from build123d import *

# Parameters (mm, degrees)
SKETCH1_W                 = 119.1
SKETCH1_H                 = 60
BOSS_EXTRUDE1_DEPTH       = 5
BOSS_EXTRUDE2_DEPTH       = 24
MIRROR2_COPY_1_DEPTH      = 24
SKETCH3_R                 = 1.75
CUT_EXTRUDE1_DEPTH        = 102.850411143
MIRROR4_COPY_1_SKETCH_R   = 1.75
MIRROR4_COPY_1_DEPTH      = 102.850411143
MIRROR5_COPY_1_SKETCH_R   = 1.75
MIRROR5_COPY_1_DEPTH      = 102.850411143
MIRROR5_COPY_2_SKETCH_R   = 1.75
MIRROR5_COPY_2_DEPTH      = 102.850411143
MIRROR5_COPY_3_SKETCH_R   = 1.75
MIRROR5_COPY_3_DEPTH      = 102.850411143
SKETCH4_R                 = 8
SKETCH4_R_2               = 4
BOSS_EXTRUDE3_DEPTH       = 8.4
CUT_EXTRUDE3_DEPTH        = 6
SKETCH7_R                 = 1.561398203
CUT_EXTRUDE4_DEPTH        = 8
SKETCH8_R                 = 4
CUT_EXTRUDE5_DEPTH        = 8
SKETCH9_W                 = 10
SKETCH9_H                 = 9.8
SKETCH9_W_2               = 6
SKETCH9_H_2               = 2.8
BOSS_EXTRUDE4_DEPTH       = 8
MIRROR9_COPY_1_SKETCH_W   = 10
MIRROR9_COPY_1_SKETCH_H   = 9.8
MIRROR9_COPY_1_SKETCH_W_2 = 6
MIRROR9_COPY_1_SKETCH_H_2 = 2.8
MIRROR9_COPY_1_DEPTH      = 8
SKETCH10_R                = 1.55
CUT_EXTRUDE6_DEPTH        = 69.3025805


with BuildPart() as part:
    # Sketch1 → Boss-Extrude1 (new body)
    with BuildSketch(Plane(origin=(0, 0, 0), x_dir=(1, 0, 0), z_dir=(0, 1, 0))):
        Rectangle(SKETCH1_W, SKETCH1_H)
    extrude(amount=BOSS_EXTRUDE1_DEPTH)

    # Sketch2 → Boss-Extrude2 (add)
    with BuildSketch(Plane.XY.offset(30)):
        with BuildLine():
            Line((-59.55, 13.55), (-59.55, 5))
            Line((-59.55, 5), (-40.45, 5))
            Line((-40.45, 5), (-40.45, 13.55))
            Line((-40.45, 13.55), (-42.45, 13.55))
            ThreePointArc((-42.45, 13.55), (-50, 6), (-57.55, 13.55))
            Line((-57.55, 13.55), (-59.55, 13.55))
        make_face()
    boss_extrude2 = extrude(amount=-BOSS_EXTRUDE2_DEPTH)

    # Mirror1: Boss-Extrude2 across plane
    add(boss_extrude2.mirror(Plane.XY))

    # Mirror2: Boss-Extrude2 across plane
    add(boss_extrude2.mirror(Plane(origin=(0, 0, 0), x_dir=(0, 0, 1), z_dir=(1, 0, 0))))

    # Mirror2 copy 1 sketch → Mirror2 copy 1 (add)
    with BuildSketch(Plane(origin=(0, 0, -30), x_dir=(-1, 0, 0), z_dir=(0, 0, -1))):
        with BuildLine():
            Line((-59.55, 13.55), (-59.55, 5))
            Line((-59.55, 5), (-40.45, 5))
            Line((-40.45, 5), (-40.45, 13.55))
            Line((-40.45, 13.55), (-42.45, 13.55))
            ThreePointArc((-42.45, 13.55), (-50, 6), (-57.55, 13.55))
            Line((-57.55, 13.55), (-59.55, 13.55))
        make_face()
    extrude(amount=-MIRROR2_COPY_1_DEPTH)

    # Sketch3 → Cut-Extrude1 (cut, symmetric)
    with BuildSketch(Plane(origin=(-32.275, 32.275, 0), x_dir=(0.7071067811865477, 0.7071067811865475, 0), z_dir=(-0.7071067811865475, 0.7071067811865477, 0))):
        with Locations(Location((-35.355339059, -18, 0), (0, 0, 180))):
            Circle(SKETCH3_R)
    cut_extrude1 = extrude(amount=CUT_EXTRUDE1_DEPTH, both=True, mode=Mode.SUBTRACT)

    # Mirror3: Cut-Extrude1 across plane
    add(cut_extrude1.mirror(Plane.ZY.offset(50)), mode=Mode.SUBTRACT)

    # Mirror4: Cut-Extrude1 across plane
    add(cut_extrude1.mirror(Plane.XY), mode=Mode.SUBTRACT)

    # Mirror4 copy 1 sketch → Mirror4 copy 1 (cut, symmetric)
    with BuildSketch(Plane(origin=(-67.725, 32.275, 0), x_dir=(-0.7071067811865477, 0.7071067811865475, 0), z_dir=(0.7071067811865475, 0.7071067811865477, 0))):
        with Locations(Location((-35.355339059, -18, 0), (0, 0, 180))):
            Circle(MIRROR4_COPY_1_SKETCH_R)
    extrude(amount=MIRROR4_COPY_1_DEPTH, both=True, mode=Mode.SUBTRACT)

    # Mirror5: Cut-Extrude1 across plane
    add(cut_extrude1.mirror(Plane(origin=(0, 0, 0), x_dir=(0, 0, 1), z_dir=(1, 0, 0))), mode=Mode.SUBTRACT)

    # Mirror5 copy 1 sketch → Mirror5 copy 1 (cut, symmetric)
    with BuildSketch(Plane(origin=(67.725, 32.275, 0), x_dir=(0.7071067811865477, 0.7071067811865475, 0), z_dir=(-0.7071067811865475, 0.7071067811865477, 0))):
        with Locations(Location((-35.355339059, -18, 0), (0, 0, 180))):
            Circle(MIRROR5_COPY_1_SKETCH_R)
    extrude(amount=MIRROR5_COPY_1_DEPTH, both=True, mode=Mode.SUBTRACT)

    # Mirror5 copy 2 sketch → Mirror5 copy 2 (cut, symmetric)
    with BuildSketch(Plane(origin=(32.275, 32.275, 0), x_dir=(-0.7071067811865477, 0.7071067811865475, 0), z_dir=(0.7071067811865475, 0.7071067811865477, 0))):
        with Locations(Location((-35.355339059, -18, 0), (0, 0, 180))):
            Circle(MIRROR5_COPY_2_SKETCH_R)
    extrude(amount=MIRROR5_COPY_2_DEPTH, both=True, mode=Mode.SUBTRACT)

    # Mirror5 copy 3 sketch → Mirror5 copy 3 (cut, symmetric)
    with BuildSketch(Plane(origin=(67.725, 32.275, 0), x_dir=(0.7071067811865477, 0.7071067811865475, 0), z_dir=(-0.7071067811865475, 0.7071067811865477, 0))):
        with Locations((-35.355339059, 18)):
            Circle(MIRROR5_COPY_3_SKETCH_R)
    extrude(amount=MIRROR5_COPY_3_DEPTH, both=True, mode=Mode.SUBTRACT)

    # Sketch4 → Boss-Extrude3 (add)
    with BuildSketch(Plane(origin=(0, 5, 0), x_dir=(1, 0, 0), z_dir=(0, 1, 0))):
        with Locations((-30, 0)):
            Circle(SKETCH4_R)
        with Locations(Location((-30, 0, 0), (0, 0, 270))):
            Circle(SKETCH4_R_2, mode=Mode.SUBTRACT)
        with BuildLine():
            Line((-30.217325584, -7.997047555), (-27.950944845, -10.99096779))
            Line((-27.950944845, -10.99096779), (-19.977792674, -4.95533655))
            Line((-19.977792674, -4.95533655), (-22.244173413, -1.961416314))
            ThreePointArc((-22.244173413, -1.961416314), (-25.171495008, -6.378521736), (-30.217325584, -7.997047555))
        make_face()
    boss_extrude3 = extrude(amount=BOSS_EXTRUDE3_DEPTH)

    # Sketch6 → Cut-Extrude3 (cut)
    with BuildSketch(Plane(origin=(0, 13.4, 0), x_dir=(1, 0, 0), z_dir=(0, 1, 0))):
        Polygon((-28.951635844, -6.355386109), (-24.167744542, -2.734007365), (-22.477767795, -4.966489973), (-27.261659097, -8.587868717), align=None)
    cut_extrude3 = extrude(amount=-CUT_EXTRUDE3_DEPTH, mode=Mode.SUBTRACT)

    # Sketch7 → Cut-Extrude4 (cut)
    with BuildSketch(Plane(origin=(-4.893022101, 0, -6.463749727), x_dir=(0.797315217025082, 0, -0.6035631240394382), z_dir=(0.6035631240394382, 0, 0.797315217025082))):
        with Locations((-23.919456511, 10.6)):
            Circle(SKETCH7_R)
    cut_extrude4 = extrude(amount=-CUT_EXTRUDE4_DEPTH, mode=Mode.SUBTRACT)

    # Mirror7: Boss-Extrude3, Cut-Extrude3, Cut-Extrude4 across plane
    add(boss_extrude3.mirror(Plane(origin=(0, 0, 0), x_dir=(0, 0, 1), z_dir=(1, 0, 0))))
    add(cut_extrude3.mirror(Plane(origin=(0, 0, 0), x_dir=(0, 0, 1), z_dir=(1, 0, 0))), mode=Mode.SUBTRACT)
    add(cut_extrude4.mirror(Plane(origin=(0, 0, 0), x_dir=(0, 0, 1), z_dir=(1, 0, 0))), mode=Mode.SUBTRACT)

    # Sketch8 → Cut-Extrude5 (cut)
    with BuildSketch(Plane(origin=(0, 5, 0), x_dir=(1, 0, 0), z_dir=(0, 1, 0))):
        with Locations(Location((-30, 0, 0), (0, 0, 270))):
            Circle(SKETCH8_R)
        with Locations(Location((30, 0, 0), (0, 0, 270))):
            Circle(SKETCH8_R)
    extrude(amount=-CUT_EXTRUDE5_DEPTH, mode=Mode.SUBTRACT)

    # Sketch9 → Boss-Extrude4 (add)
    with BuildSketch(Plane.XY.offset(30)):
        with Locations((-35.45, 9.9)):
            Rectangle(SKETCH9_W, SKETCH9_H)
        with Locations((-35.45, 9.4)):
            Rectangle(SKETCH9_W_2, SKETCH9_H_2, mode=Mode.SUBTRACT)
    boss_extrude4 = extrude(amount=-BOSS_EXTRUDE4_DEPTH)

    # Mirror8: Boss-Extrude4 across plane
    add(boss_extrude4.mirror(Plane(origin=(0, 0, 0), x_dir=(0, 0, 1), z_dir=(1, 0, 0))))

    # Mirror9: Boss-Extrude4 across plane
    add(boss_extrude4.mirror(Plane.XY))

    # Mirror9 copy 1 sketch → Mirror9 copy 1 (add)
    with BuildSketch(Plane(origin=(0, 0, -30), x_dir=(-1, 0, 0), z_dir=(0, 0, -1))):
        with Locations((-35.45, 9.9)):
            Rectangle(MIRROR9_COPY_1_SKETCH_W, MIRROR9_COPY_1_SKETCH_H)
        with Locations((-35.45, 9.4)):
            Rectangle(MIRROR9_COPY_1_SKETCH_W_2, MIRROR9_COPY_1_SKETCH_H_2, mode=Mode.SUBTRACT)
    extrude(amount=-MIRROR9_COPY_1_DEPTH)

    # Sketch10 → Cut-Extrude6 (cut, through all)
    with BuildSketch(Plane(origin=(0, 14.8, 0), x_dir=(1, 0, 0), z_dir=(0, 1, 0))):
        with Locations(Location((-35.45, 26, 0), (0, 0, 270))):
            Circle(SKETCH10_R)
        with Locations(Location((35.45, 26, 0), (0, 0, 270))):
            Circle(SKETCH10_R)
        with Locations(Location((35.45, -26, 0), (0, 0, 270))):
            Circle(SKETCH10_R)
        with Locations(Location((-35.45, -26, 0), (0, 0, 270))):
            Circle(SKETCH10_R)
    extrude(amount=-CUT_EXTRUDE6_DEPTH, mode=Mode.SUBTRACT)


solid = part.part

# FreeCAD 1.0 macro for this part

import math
import FreeCAD as App
import Part
import Sketcher

V = App.Vector
Q = App.Units.Quantity

doc = App.newDocument("Part")
params = doc.addObject("Spreadsheet::Sheet", "Params")
for row, (alias, value) in enumerate([
    ("sketch1_height", "60 mm"),
    ("sketch1_width", "119.1 mm"),
    ("pad1_length", "5 mm"),
    ("sketch2_width", "2 mm"),
    ("sketch2_radius", "7.55 mm"),
    ("sketch2_height", "8.55 mm"),
    ("pad2_length", "24 mm"),
    ("sketch3_width", "2 mm"),
    ("sketch3_radius", "7.55 mm"),
    ("sketch3_height", "8.55 mm"),
    ("pad3_length", "24 mm"),
    ("sketch4_diameter", "3.5 mm"),
    ("pocket1_length", "205.700822 mm"),
    ("sketch5_diameter", "3.5 mm"),
    ("pocket2_length", "205.700822 mm"),
    ("sketch6_diameter", "3.5 mm"),
    ("pocket3_length", "205.700822 mm"),
    ("sketch7_diameter", "3.5 mm"),
    ("pocket4_length", "205.700822 mm"),
    ("sketch8_diameter", "3.5 mm"),
    ("pocket5_length", "205.700822 mm"),
    ("sketch9_diameter", "8 mm"),
    ("sketch9_radius", "8 mm"),
    ("sketch9_length", "10 mm"),
    ("pad4_length", "8.4 mm"),
    ("sketch10_length", "6 mm"),
    ("sketch10_length2", "2.8 mm"),
    ("pocket6_length", "6 mm"),
    ("pocket7_length", "8 mm"),
    ("sketch12_diameter", "8 mm"),
    ("pocket8_length", "8 mm"),
    ("sketch13_width", "10 mm"),
    ("sketch13_width2", "6 mm"),
    ("sketch13_height", "9.8 mm"),
    ("sketch13_height2", "2.8 mm"),
    ("pad5_length", "8 mm"),
    ("sketch14_width", "10 mm"),
    ("sketch14_width2", "6 mm"),
    ("sketch14_height", "9.8 mm"),
    ("sketch14_height2", "2.8 mm"),
    ("pad6_length", "8 mm"),
    ("sketch15_diameter", "3.1 mm"),
], start=1):
    params.set(f"A{row}", alias)
    params.set(f"B{row}", "=" + value)
    params.setAlias(f"B{row}", alias)

body = doc.addObject("PartDesign::Body", "Body")

# Sketch on XZ plane
sketch1 = body.newObject("Sketcher::SketchObject", "Sketch")
sketch1.AttachmentSupport = (doc.getObject("XZ_Plane"), [""])
sketch1.MapMode = "FlatFace"
sketch1.addGeometry([
    Part.LineSegment(V(-59.55, -30, 0), V(-59.55, 30, 0)),
    Part.LineSegment(V(-59.55, 30, 0), V(59.55, 30, 0)),
    Part.LineSegment(V(59.55, 30, 0), V(59.55, -30, 0)),
    Part.LineSegment(V(59.55, -30, 0), V(-59.55, -30, 0)),
], False)
sketch1.addConstraint([
    Sketcher.Constraint("Coincident", 0, 2, 1, 1),
    Sketcher.Constraint("Coincident", 1, 2, 2, 1),
    Sketcher.Constraint("Coincident", 2, 2, 3, 1),
    Sketcher.Constraint("Coincident", 3, 2, 0, 1),
    Sketcher.Constraint("Vertical", 0),
    Sketcher.Constraint("Horizontal", 1),
    Sketcher.Constraint("Vertical", 2),
    Sketcher.Constraint("Horizontal", 3),
    Sketcher.Constraint("Symmetric", 0, 2, 2, 2, -1, 1),
    Sketcher.Constraint("DistanceY", 0, 1, 0, 2, Q("60 mm")),
    Sketcher.Constraint("DistanceX", 1, 1, 1, 2, Q("119.1 mm")),
])
sketch1.setExpression("Constraints[9]", "Params.sketch1_height")
sketch1.setExpression("Constraints[10]", "Params.sketch1_width")
pad1 = body.newObject("PartDesign::Pad", "Pad")
pad1.Profile = sketch1
pad1.setExpression("Length", "Params.pad1_length")
pad1.Reversed = True

# Sketch on XY plane
sketch2 = body.newObject("Sketcher::SketchObject", "Sketch001")
sketch2.AttachmentSupport = (doc.getObject("XY_Plane"), [""])
sketch2.MapMode = "FlatFace"
sketch2.AttachmentOffset = App.Placement(V(0, 0, 30), App.Rotation())
sketch2.addGeometry([
    Part.LineSegment(V(-59.55, 13.55, 0), V(-59.55, 5, 0)),  # 0
    Part.LineSegment(V(-59.55, 5, 0), V(-40.45, 5, 0)),  # 1
    Part.LineSegment(V(-40.45, 5, 0), V(-40.45, 13.55, 0)),  # 2
    Part.LineSegment(V(-40.45, 13.55, 0), V(-42.45, 13.55, 0)),  # 3
    Part.ArcOfCircle(Part.Circle(V(-50, 13.55, 0), V(0, 0, 1), 7.55), math.radians(180), math.radians(360)),  # 4
    Part.LineSegment(V(-57.55, 13.55, 0), V(-59.55, 13.55, 0)),  # 5
], False)
sketch2.addConstraint([
    Sketcher.Constraint("Coincident", 0, 2, 1, 1),
    Sketcher.Constraint("Coincident", 1, 2, 2, 1),
    Sketcher.Constraint("Coincident", 2, 2, 3, 1),
    Sketcher.Constraint("Coincident", 3, 2, 4, 2),
    Sketcher.Constraint("Coincident", 4, 1, 5, 1),
    Sketcher.Constraint("Coincident", 5, 2, 0, 1),
    Sketcher.Constraint("Vertical", 0),
    Sketcher.Constraint("Horizontal", 1),
    Sketcher.Constraint("Vertical", 2),
    Sketcher.Constraint("Horizontal", 3),
    Sketcher.Constraint("Horizontal", 5),
    Sketcher.Constraint("Horizontal", 4, 3, 2, 2),
    Sketcher.Constraint("Horizontal", 3, 2, 4, 1),
    Sketcher.Constraint("Equal", 3, 5),
    Sketcher.Constraint("DistanceX", 3, 2, 3, 1, Q("2 mm")),
    Sketcher.Constraint("Radius", 4, Q("7.55 mm")),
    Sketcher.Constraint("DistanceX", 4, 3, -1, 1, Q("50 mm")),
    Sketcher.Constraint("DistanceY", -1, 1, 0, 2, Q("5 mm")),
    Sketcher.Constraint("DistanceY", 0, 2, 0, 1, Q("8.55 mm")),
])
sketch2.setExpression("Constraints[14]", "Params.sketch2_width")
sketch2.setExpression("Constraints[15]", "Params.sketch2_radius")
sketch2.setExpression("Constraints[18]", "Params.sketch2_height")
pad2 = body.newObject("PartDesign::Pad", "Pad001")
pad2.Profile = sketch2
pad2.setExpression("Length", "Params.pad2_length")
pad2.Reversed = True
doc.recompute()

mirrored = body.newObject("PartDesign::Mirrored", "Mirrored")
mirrored.Originals = [pad2]
mirrored.MirrorPlane = (doc.getObject("XY_Plane"), [""])
body.Tip = mirrored
doc.recompute()

mirrored2 = body.newObject("PartDesign::Mirrored", "Mirrored001")
mirrored2.Originals = [pad2]
mirrored2.MirrorPlane = (doc.getObject("YZ_Plane"), [""])
body.Tip = mirrored2

# Sketch on XY plane
sketch3 = body.newObject("Sketcher::SketchObject", "Sketch002")
sketch3.AttachmentSupport = (doc.getObject("XY_Plane"), [""])
sketch3.MapMode = "FlatFace"
sketch3.AttachmentOffset = App.Placement(V(0, 0, -30), App.Rotation())
sketch3.addGeometry([
    Part.LineSegment(V(59.55, 13.55, 0), V(59.55, 5, 0)),  # 0
    Part.LineSegment(V(59.55, 5, 0), V(40.45, 5, 0)),  # 1
    Part.LineSegment(V(40.45, 5, 0), V(40.45, 13.55, 0)),  # 2
    Part.LineSegment(V(40.45, 13.55, 0), V(42.45, 13.55, 0)),  # 3
    Part.ArcOfCircle(Part.Circle(V(50, 13.55, 0), V(0, 0, 1), 7.55), math.radians(180), math.radians(360)),  # 4
    Part.LineSegment(V(57.55, 13.55, 0), V(59.55, 13.55, 0)),  # 5
], False)
sketch3.addConstraint([
    Sketcher.Constraint("Coincident", 0, 2, 1, 1),
    Sketcher.Constraint("Coincident", 1, 2, 2, 1),
    Sketcher.Constraint("Coincident", 2, 2, 3, 1),
    Sketcher.Constraint("Coincident", 3, 2, 4, 1),
    Sketcher.Constraint("Coincident", 4, 2, 5, 1),
    Sketcher.Constraint("Coincident", 5, 2, 0, 1),
    Sketcher.Constraint("Vertical", 0),
    Sketcher.Constraint("Horizontal", 1),
    Sketcher.Constraint("Vertical", 2),
    Sketcher.Constraint("Horizontal", 3),
    Sketcher.Constraint("Horizontal", 5),
    Sketcher.Constraint("Horizontal", 4, 3, 2, 2),
    Sketcher.Constraint("Horizontal", 3, 2, 4, 2),
    Sketcher.Constraint("Equal", 3, 5),
    Sketcher.Constraint("DistanceX", 3, 1, 3, 2, Q("2 mm")),
    Sketcher.Constraint("Radius", 4, Q("7.55 mm")),
    Sketcher.Constraint("DistanceX", -1, 1, 4, 3, Q("50 mm")),
    Sketcher.Constraint("DistanceY", -1, 1, 0, 2, Q("5 mm")),
    Sketcher.Constraint("DistanceY", 0, 2, 0, 1, Q("8.55 mm")),
])
sketch3.setExpression("Constraints[14]", "Params.sketch3_width")
sketch3.setExpression("Constraints[15]", "Params.sketch3_radius")
sketch3.setExpression("Constraints[18]", "Params.sketch3_height")
pad3 = body.newObject("PartDesign::Pad", "Pad002")
pad3.Profile = sketch3
pad3.setExpression("Length", "Params.pad3_length")

# Sketch on an angled plane
sketch4 = body.newObject("Sketcher::SketchObject", "Sketch003")
sketch4.Placement = App.Placement(V(-32.275, 32.275, 0), App.Rotation(V(0.707106781, 0.707106781, 0), V(0, 0, -0.999999999), V(-0.707106781, 0.707106781, 0), "ZXY"))
sketch4.addGeometry(Part.Circle(V(-35.355339, -18, 0), V(0, 0, 1), 1.75), False)
sketch4.addConstraint([
    Sketcher.Constraint("Diameter", 0, Q("3.5 mm")),
    Sketcher.Constraint("DistanceY", 0, 3, -1, 1, Q("18 mm")),
    Sketcher.Constraint("DistanceX", 0, 3, -1, 1, Q("35.355339 mm")),
])
sketch4.setExpression("Constraints[0]", "Params.sketch4_diameter")
pocket1 = body.newObject("PartDesign::Pocket", "Pocket")
pocket1.Profile = sketch4
pocket1.setExpression("Length", "Params.pocket1_length")
pocket1.Midplane = True
doc.recompute()

datumplane = body.newObject("PartDesign::Plane", "DatumPlane")
datumplane.AttachmentSupport = (doc.getObject("YZ_Plane"), [""])
datumplane.MapMode = "FlatFace"
datumplane.AttachmentOffset = App.Placement(V(0, 0, -50), App.Rotation())
mirrored3 = body.newObject("PartDesign::Mirrored", "Mirrored002")
mirrored3.Originals = [pocket1]
mirrored3.MirrorPlane = (datumplane, [""])
body.Tip = mirrored3
doc.recompute()

mirrored4 = body.newObject("PartDesign::Mirrored", "Mirrored003")
mirrored4.Originals = [pocket1]
mirrored4.MirrorPlane = (doc.getObject("XY_Plane"), [""])
body.Tip = mirrored4

# Sketch on an angled plane
sketch5 = body.newObject("Sketcher::SketchObject", "Sketch004")
sketch5.Placement = App.Placement(V(-67.725, 32.275, 0), App.Rotation(V(-0.707106781, 0.707106781, 0), V(0, 0, 0.999999999), V(0.707106781, 0.707106781, 0), "ZXY"))
sketch5.addGeometry(Part.Circle(V(-35.355339, -18, 0), V(0, 0, 1), 1.75), False)
sketch5.addConstraint([
    Sketcher.Constraint("Diameter", 0, Q("3.5 mm")),
    Sketcher.Constraint("DistanceY", 0, 3, -1, 1, Q("18 mm")),
    Sketcher.Constraint("DistanceX", 0, 3, -1, 1, Q("35.355339 mm")),
])
sketch5.setExpression("Constraints[0]", "Params.sketch5_diameter")
pocket2 = body.newObject("PartDesign::Pocket", "Pocket001")
pocket2.Profile = sketch5
pocket2.setExpression("Length", "Params.pocket2_length")
pocket2.Midplane = True
doc.recompute()

mirrored5 = body.newObject("PartDesign::Mirrored", "Mirrored004")
mirrored5.Originals = [pocket1]
mirrored5.MirrorPlane = (doc.getObject("YZ_Plane"), [""])
body.Tip = mirrored5

# Sketch on an angled plane
sketch6 = body.newObject("Sketcher::SketchObject", "Sketch005")
sketch6.Placement = App.Placement(V(67.725, 32.275, 0), App.Rotation(V(0.707106781, 0.707106781, 0), V(0, 0, -0.999999999), V(-0.707106781, 0.707106781, 0), "ZXY"))
sketch6.addGeometry(Part.Circle(V(-35.355339, -18, 0), V(0, 0, 1), 1.75), False)
sketch6.addConstraint([
    Sketcher.Constraint("Diameter", 0, Q("3.5 mm")),
    Sketcher.Constraint("DistanceY", 0, 3, -1, 1, Q("18 mm")),
    Sketcher.Constraint("DistanceX", 0, 3, -1, 1, Q("35.355339 mm")),
])
sketch6.setExpression("Constraints[0]", "Params.sketch6_diameter")
pocket3 = body.newObject("PartDesign::Pocket", "Pocket002")
pocket3.Profile = sketch6
pocket3.setExpression("Length", "Params.pocket3_length")
pocket3.Midplane = True

# Sketch on an angled plane
sketch7 = body.newObject("Sketcher::SketchObject", "Sketch006")
sketch7.Placement = App.Placement(V(32.275, 32.275, 0), App.Rotation(V(-0.707106781, 0.707106781, 0), V(0, 0, 0.999999999), V(0.707106781, 0.707106781, 0), "ZXY"))
sketch7.addGeometry(Part.Circle(V(-35.355339, -18, 0), V(0, 0, 1), 1.75), False)
sketch7.addConstraint([
    Sketcher.Constraint("Diameter", 0, Q("3.5 mm")),
    Sketcher.Constraint("DistanceY", 0, 3, -1, 1, Q("18 mm")),
    Sketcher.Constraint("DistanceX", 0, 3, -1, 1, Q("35.355339 mm")),
])
sketch7.setExpression("Constraints[0]", "Params.sketch7_diameter")
pocket4 = body.newObject("PartDesign::Pocket", "Pocket003")
pocket4.Profile = sketch7
pocket4.setExpression("Length", "Params.pocket4_length")
pocket4.Midplane = True

# Sketch on an angled plane
sketch8 = body.newObject("Sketcher::SketchObject", "Sketch007")
sketch8.Placement = App.Placement(V(67.725, 32.275, 0), App.Rotation(V(0.707106781, 0.707106781, 0), V(0, 0, -0.999999999), V(-0.707106781, 0.707106781, 0), "ZXY"))
sketch8.addGeometry(Part.Circle(V(-35.355339, 18, 0), V(0, 0, 1), 1.75), False)
sketch8.addConstraint([
    Sketcher.Constraint("Diameter", 0, Q("3.5 mm")),
    Sketcher.Constraint("DistanceY", -1, 1, 0, 3, Q("18 mm")),
    Sketcher.Constraint("DistanceX", 0, 3, -1, 1, Q("35.355339 mm")),
])
sketch8.setExpression("Constraints[0]", "Params.sketch8_diameter")
pocket5 = body.newObject("PartDesign::Pocket", "Pocket004")
pocket5.Profile = sketch8
pocket5.setExpression("Length", "Params.pocket5_length")
pocket5.Midplane = True

# Sketch on XZ plane
sketch9 = body.newObject("Sketcher::SketchObject", "Sketch008")
sketch9.AttachmentSupport = (doc.getObject("XZ_Plane"), [""])
sketch9.MapMode = "FlatFace"
sketch9.AttachmentOffset = App.Placement(V(0, 0, -5), App.Rotation())
sketch9.addGeometry([
    Part.LineSegment(V(-30.217326, 7.997048, 0), V(-27.950945, 10.990968, 0)),  # 0
    Part.LineSegment(V(-27.950945, 10.990968, 0), V(-19.977793, 4.955337, 0)),  # 1
    Part.LineSegment(V(-19.977793, 4.955337, 0), V(-22.244173, 1.961416, 0)),  # 2
    Part.ArcOfCircle(Part.Circle(V(-30, 0, 0), V(0, 0, 1), 8), math.radians(91.556671), math.radians(374.192296)),  # 3
    Part.Circle(V(-30, 0, 0), V(0, 0, 1), 4),  # 4
], False)
sketch9.addConstraint([
    Sketcher.Constraint("Coincident", 0, 2, 1, 1),
    Sketcher.Constraint("Coincident", 1, 2, 2, 1),
    Sketcher.Constraint("Coincident", 2, 2, 3, 2),
    Sketcher.Constraint("Coincident", 3, 1, 0, 1),
    Sketcher.Constraint("Coincident", 4, 3, 3, 3),
    Sketcher.Constraint("PointOnObject", 3, 3, -1),
    Sketcher.Constraint("Perpendicular", 0, 1),
    Sketcher.Constraint("Perpendicular", 1, 2),
    Sketcher.Constraint("Equal", 0, 2),
    Sketcher.Constraint("Diameter", 4, Q("8 mm")),
    Sketcher.Constraint("Radius", 3, Q("8 mm")),
    Sketcher.Constraint("Distance", 1, Q("10 mm")),
    Sketcher.Constraint("DistanceX", 3, 3, -1, 1, Q("30 mm")),
    Sketcher.Constraint("DistanceY", 1, 2, 0, 2, Q("6.035631 mm")),
    Sketcher.Constraint("DistanceX", 2, 2, 1, 2, Q("2.266381 mm")),
])
sketch9.setExpression("Constraints[9]", "Params.sketch9_diameter")
sketch9.setExpression("Constraints[10]", "Params.sketch9_radius")
sketch9.setExpression("Constraints[11]", "Params.sketch9_length")
pad4 = body.newObject("PartDesign::Pad", "Pad003")
pad4.Profile = sketch9
pad4.setExpression("Length", "Params.pad4_length")
pad4.Reversed = True

# Sketch on XZ plane
sketch10 = body.newObject("Sketcher::SketchObject", "Sketch009")
sketch10.AttachmentSupport = (doc.getObject("XZ_Plane"), [""])
sketch10.MapMode = "FlatFace"
sketch10.AttachmentOffset = App.Placement(V(0, 0, -13.4), App.Rotation())
sketch10.addGeometry([
    Part.LineSegment(V(-24.167745, 2.734007, 0), V(-28.951636, 6.355386, 0)),
    Part.LineSegment(V(-28.951636, 6.355386, 0), V(-27.261659, 8.587869, 0)),
    Part.LineSegment(V(-27.261659, 8.587869, 0), V(-22.477768, 4.96649, 0)),
    Part.LineSegment(V(-22.477768, 4.96649, 0), V(-24.167745, 2.734007, 0)),
], False)
sketch10.addConstraint([
    Sketcher.Constraint("Coincident", 0, 2, 1, 1),
    Sketcher.Constraint("Coincident", 1, 2, 2, 1),
    Sketcher.Constraint("Coincident", 2, 2, 3, 1),
    Sketcher.Constraint("Coincident", 3, 2, 0, 1),
    Sketcher.Constraint("Perpendicular", 0, 1),
    Sketcher.Constraint("Perpendicular", 1, 2),
    Sketcher.Constraint("Perpendicular", 2, 3),
    Sketcher.Constraint("Distance", 0, Q("6 mm")),
    Sketcher.Constraint("Distance", 1, Q("2.8 mm")),
    Sketcher.Constraint("DistanceX", 1, 2, -1, 1, Q("27.261659 mm")),
    Sketcher.Constraint("DistanceY", -1, 1, 1, 2, Q("8.587869 mm")),
    Sketcher.Constraint("DistanceY", -1, 1, 2, 2, Q("4.96649 mm")),
])
sketch10.setExpression("Constraints[7]", "Params.sketch10_length")
sketch10.setExpression("Constraints[8]", "Params.sketch10_length2")
pocket6 = body.newObject("PartDesign::Pocket", "Pocket005")
pocket6.Profile = sketch10
pocket6.setExpression("Length", "Params.pocket6_length")
pocket6.Reversed = True

# Sketch on an angled plane
sketch11 = body.newObject("Sketcher::SketchObject", "Sketch010")
sketch11.Placement = App.Placement(V(-4.893022, 0, -6.46375), App.Rotation(V(0.797315217, 0, -0.603563124), V(0, 1, 0), V(0.603563124, 0, 0.797315217), "ZXY"))
sketch11.addGeometry(Part.Circle(V(-23.919457, 10.6, 0), V(0, 0, 1), 1.561398), False)
sketch11.addConstraint([
    Sketcher.Constraint("DistanceY", -1, 1, 0, 3, Q("10.6 mm")),
    Sketcher.Constraint("Diameter", 0, Q("3.122796 mm")),
    Sketcher.Constraint("DistanceX", 0, 3, -1, 1, Q("23.919457 mm")),
])
pocket7 = body.newObject("PartDesign::Pocket", "Pocket006")
pocket7.Profile = sketch11
pocket7.setExpression("Length", "Params.pocket7_length")
doc.recompute()

mirrored6 = body.newObject("PartDesign::Mirrored", "Mirrored005")
mirrored6.Originals = [pad4, pocket6, pocket7]
mirrored6.MirrorPlane = (doc.getObject("YZ_Plane"), [""])
body.Tip = mirrored6

# Sketch on XZ plane
sketch12 = body.newObject("Sketcher::SketchObject", "Sketch011")
sketch12.AttachmentSupport = (doc.getObject("XZ_Plane"), [""])
sketch12.MapMode = "FlatFace"
sketch12.AttachmentOffset = App.Placement(V(0, 0, -5), App.Rotation())
sketch12.addGeometry([
    Part.Circle(V(-30, 0, 0), V(0, 0, 1), 4),
    Part.Circle(V(30, 0, 0), V(0, 0, 1), 4),
], False)
sketch12.addConstraint([
    Sketcher.Constraint("Equal", 0, 1),
    Sketcher.Constraint("Symmetric", 0, 3, 1, 3, -1, 1),
    Sketcher.Constraint("PointOnObject", 0, 3, -1),
    Sketcher.Constraint("Diameter", 0, Q("8 mm")),
    Sketcher.Constraint("DistanceX", 0, 3, -1, 1, Q("30 mm")),
])
sketch12.setExpression("Constraints[3]", "Params.sketch12_diameter")
pocket8 = body.newObject("PartDesign::Pocket", "Pocket007")
pocket8.Profile = sketch12
pocket8.setExpression("Length", "Params.pocket8_length")
pocket8.Reversed = True

# Sketch on XY plane
sketch13 = body.newObject("Sketcher::SketchObject", "Sketch012")
sketch13.AttachmentSupport = (doc.getObject("XY_Plane"), [""])
sketch13.MapMode = "FlatFace"
sketch13.AttachmentOffset = App.Placement(V(0, 0, 30), App.Rotation())
sketch13.addGeometry([
    Part.LineSegment(V(-40.45, 14.8, 0), V(-40.45, 5, 0)),  # 0
    Part.LineSegment(V(-40.45, 5, 0), V(-30.45, 5, 0)),  # 1
    Part.LineSegment(V(-30.45, 5, 0), V(-30.45, 14.8, 0)),  # 2
    Part.LineSegment(V(-30.45, 14.8, 0), V(-40.45, 14.8, 0)),  # 3
    Part.LineSegment(V(-32.45, 8, 0), V(-38.45, 8, 0)),  # 4
    Part.LineSegment(V(-38.45, 8, 0), V(-38.45, 10.8, 0)),  # 5
    Part.LineSegment(V(-38.45, 10.8, 0), V(-32.45, 10.8, 0)),  # 6
    Part.LineSegment(V(-32.45, 10.8, 0), V(-32.45, 8, 0)),  # 7
], False)
sketch13.addConstraint([
    Sketcher.Constraint("Coincident", 0, 2, 1, 1),
    Sketcher.Constraint("Coincident", 1, 2, 2, 1),
    Sketcher.Constraint("Coincident", 2, 2, 3, 1),
    Sketcher.Constraint("Coincident", 3, 2, 0, 1),
    Sketcher.Constraint("Coincident", 4, 2, 5, 1),
    Sketcher.Constraint("Coincident", 5, 2, 6, 1),
    Sketcher.Constraint("Coincident", 6, 2, 7, 1),
    Sketcher.Constraint("Coincident", 7, 2, 4, 1),
    Sketcher.Constraint("Vertical", 0),
    Sketcher.Constraint("Horizontal", 1),
    Sketcher.Constraint("Vertical", 2),
    Sketcher.Constraint("Horizontal", 3),
    Sketcher.Constraint("Horizontal", 4),
    Sketcher.Constraint("Vertical", 5),
    Sketcher.Constraint("Horizontal", 6),
    Sketcher.Constraint("Vertical", 7),
    Sketcher.Constraint("DistanceX", 1, 1, 1, 2, Q("10 mm")),
    Sketcher.Constraint("DistanceX", 4, 2, 4, 1, Q("6 mm")),
    Sketcher.Constraint("DistanceY", 0, 2, 0, 1, Q("9.8 mm")),
    Sketcher.Constraint("DistanceY", 5, 1, 5, 2, Q("2.8 mm")),
    Sketcher.Constraint("DistanceY", -1, 1, 0, 2, Q("5 mm")),
    Sketcher.Constraint("DistanceY", -1, 1, 4, 2, Q("8 mm")),
    Sketcher.Constraint("DistanceX", 0, 2, 4, 2, Q("2 mm")),
    Sketcher.Constraint("DistanceX", 0, 2, -1, 1, Q("40.45 mm")),
])
sketch13.setExpression("Constraints[16]", "Params.sketch13_width")
sketch13.setExpression("Constraints[17]", "Params.sketch13_width2")
sketch13.setExpression("Constraints[18]", "Params.sketch13_height")
sketch13.setExpression("Constraints[19]", "Params.sketch13_height2")
pad5 = body.newObject("PartDesign::Pad", "Pad004")
pad5.Profile = sketch13
pad5.setExpression("Length", "Params.pad5_length")
pad5.Reversed = True
doc.recompute()

mirrored7 = body.newObject("PartDesign::Mirrored", "Mirrored006")
mirrored7.Originals = [pad5]
mirrored7.MirrorPlane = (doc.getObject("YZ_Plane"), [""])
body.Tip = mirrored7
doc.recompute()

mirrored8 = body.newObject("PartDesign::Mirrored", "Mirrored007")
mirrored8.Originals = [pad5]
mirrored8.MirrorPlane = (doc.getObject("XY_Plane"), [""])
body.Tip = mirrored8

# Sketch on XY plane
sketch14 = body.newObject("Sketcher::SketchObject", "Sketch013")
sketch14.AttachmentSupport = (doc.getObject("XY_Plane"), [""])
sketch14.MapMode = "FlatFace"
sketch14.AttachmentOffset = App.Placement(V(0, 0, -30), App.Rotation())
sketch14.addGeometry([
    Part.LineSegment(V(40.45, 14.8, 0), V(40.45, 5, 0)),  # 0
    Part.LineSegment(V(40.45, 5, 0), V(30.45, 5, 0)),  # 1
    Part.LineSegment(V(30.45, 5, 0), V(30.45, 14.8, 0)),  # 2
    Part.LineSegment(V(30.45, 14.8, 0), V(40.45, 14.8, 0)),  # 3
    Part.LineSegment(V(32.45, 8, 0), V(38.45, 8, 0)),  # 4
    Part.LineSegment(V(38.45, 8, 0), V(38.45, 10.8, 0)),  # 5
    Part.LineSegment(V(38.45, 10.8, 0), V(32.45, 10.8, 0)),  # 6
    Part.LineSegment(V(32.45, 10.8, 0), V(32.45, 8, 0)),  # 7
], False)
sketch14.addConstraint([
    Sketcher.Constraint("Coincident", 0, 2, 1, 1),
    Sketcher.Constraint("Coincident", 1, 2, 2, 1),
    Sketcher.Constraint("Coincident", 2, 2, 3, 1),
    Sketcher.Constraint("Coincident", 3, 2, 0, 1),
    Sketcher.Constraint("Coincident", 4, 2, 5, 1),
    Sketcher.Constraint("Coincident", 5, 2, 6, 1),
    Sketcher.Constraint("Coincident", 6, 2, 7, 1),
    Sketcher.Constraint("Coincident", 7, 2, 4, 1),
    Sketcher.Constraint("Vertical", 0),
    Sketcher.Constraint("Horizontal", 1),
    Sketcher.Constraint("Vertical", 2),
    Sketcher.Constraint("Horizontal", 3),
    Sketcher.Constraint("Horizontal", 4),
    Sketcher.Constraint("Vertical", 5),
    Sketcher.Constraint("Horizontal", 6),
    Sketcher.Constraint("Vertical", 7),
    Sketcher.Constraint("DistanceX", 1, 2, 1, 1, Q("10 mm")),
    Sketcher.Constraint("DistanceX", 4, 1, 4, 2, Q("6 mm")),
    Sketcher.Constraint("DistanceY", 0, 2, 0, 1, Q("9.8 mm")),
    Sketcher.Constraint("DistanceY", 5, 1, 5, 2, Q("2.8 mm")),
    Sketcher.Constraint("DistanceY", -1, 1, 0, 2, Q("5 mm")),
    Sketcher.Constraint("DistanceY", -1, 1, 4, 2, Q("8 mm")),
    Sketcher.Constraint("DistanceX", 4, 2, 0, 2, Q("2 mm")),
    Sketcher.Constraint("DistanceX", -1, 1, 0, 2, Q("40.45 mm")),
])
sketch14.setExpression("Constraints[16]", "Params.sketch14_width")
sketch14.setExpression("Constraints[17]", "Params.sketch14_width2")
sketch14.setExpression("Constraints[18]", "Params.sketch14_height")
sketch14.setExpression("Constraints[19]", "Params.sketch14_height2")
pad6 = body.newObject("PartDesign::Pad", "Pad005")
pad6.Profile = sketch14
pad6.setExpression("Length", "Params.pad6_length")

# Sketch on XZ plane
sketch15 = body.newObject("Sketcher::SketchObject", "Sketch014")
sketch15.AttachmentSupport = (doc.getObject("XZ_Plane"), [""])
sketch15.MapMode = "FlatFace"
sketch15.AttachmentOffset = App.Placement(V(0, 0, -14.8), App.Rotation())
sketch15.addGeometry([
    Part.Circle(V(-35.45, -26, 0), V(0, 0, 1), 1.55),
    Part.Circle(V(35.45, -26, 0), V(0, 0, 1), 1.55),
    Part.Circle(V(35.45, 26, 0), V(0, 0, 1), 1.55),
    Part.Circle(V(-35.45, 26, 0), V(0, 0, 1), 1.55),
], False)
sketch15.addConstraint([
    Sketcher.Constraint("Equal", 0, 1),
    Sketcher.Constraint("Equal", 1, 2),
    Sketcher.Constraint("Equal", 2, 3),
    Sketcher.Constraint("Symmetric", 0, 3, 2, 3, -1, 1),
    Sketcher.Constraint("Symmetric", 1, 3, 3, 3, -1, 1),
    Sketcher.Constraint("Symmetric", 0, 3, 1, 3, -2),
    Sketcher.Constraint("Diameter", 0, Q("3.1 mm")),
    Sketcher.Constraint("DistanceY", 0, 3, -1, 1, Q("26 mm")),
    Sketcher.Constraint("DistanceX", 0, 3, 1, 3, Q("70.9 mm")),
])
sketch15.setExpression("Constraints[6]", "Params.sketch15_diameter")
pocket9 = body.newObject("PartDesign::Pocket", "Pocket008")
pocket9.Profile = sketch15
pocket9.Type = "ThroughAll"
pocket9.Reversed = True

doc.recompute()
